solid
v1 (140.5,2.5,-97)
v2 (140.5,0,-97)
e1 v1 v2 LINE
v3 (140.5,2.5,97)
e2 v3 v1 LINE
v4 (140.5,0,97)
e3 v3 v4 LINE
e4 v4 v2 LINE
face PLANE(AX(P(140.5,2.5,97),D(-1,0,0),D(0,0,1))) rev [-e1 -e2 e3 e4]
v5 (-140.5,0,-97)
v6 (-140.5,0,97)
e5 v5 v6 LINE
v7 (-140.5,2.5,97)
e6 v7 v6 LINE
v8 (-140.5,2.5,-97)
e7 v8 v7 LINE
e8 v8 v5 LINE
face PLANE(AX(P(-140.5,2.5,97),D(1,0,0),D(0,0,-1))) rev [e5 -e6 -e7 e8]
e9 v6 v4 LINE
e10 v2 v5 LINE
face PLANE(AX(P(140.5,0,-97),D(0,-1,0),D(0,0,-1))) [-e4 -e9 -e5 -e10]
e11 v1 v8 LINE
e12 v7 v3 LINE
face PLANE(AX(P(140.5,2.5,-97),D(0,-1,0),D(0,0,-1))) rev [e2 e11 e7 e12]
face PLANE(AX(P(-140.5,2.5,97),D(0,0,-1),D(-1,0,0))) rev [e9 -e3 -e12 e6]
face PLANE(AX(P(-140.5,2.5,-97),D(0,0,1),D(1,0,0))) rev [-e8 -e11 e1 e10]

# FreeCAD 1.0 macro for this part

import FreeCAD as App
import Part
import Sketcher


def add_polygon(sketch, points):
    """Adds a closed chain of lines whose ends are joined by coincident constraints."""
    first, n = sketch.GeometryCount, len(points)
    for a, b in zip(points, points[1:] + points[:1]):
        sketch.addGeometry(Part.LineSegment(App.Vector(*a, 0), App.Vector(*b, 0)), False)
    for i in range(n):
        sketch.addConstraint(Sketcher.Constraint("Coincident", first + i, 2, first + (i + 1) % n, 1))

doc = App.newDocument("Part")
body = doc.addObject("PartDesign::Body", "Body")

# Sketch on XZ plane
sketch1 = body.newObject("Sketcher::SketchObject", "Sketch")
sketch1.AttachmentSupport = (doc.getObject("XZ_Plane"), [""])
sketch1.MapMode = "FlatFace"
add_polygon(sketch1, [(-140, -97), (-140, 97), (140, 97), (140, -97)])  # lines 0-3
sketch1.addConstraint([
    Sketcher.Constraint("Vertical", 0),
    Sketcher.Constraint("Horizontal", 1),
    Sketcher.Constraint("Vertical", 2),
    Sketcher.Constraint("Horizontal", 3),
    Sketcher.Constraint("Symmetric", 0, 2, 2, 2, -1, 1),
    Sketcher.Constraint("DistanceX", 1, 1, 1, 2, 281.0),
    Sketcher.Constraint("DistanceY", 0, 1, 0, 2, 194.0),
])
pad1 = body.newObject("PartDesign::Pad", "Pad")
pad1.Profile = sketch1
pad1.Length = 2.5
pad1.Reversed = True

doc.recompute()
